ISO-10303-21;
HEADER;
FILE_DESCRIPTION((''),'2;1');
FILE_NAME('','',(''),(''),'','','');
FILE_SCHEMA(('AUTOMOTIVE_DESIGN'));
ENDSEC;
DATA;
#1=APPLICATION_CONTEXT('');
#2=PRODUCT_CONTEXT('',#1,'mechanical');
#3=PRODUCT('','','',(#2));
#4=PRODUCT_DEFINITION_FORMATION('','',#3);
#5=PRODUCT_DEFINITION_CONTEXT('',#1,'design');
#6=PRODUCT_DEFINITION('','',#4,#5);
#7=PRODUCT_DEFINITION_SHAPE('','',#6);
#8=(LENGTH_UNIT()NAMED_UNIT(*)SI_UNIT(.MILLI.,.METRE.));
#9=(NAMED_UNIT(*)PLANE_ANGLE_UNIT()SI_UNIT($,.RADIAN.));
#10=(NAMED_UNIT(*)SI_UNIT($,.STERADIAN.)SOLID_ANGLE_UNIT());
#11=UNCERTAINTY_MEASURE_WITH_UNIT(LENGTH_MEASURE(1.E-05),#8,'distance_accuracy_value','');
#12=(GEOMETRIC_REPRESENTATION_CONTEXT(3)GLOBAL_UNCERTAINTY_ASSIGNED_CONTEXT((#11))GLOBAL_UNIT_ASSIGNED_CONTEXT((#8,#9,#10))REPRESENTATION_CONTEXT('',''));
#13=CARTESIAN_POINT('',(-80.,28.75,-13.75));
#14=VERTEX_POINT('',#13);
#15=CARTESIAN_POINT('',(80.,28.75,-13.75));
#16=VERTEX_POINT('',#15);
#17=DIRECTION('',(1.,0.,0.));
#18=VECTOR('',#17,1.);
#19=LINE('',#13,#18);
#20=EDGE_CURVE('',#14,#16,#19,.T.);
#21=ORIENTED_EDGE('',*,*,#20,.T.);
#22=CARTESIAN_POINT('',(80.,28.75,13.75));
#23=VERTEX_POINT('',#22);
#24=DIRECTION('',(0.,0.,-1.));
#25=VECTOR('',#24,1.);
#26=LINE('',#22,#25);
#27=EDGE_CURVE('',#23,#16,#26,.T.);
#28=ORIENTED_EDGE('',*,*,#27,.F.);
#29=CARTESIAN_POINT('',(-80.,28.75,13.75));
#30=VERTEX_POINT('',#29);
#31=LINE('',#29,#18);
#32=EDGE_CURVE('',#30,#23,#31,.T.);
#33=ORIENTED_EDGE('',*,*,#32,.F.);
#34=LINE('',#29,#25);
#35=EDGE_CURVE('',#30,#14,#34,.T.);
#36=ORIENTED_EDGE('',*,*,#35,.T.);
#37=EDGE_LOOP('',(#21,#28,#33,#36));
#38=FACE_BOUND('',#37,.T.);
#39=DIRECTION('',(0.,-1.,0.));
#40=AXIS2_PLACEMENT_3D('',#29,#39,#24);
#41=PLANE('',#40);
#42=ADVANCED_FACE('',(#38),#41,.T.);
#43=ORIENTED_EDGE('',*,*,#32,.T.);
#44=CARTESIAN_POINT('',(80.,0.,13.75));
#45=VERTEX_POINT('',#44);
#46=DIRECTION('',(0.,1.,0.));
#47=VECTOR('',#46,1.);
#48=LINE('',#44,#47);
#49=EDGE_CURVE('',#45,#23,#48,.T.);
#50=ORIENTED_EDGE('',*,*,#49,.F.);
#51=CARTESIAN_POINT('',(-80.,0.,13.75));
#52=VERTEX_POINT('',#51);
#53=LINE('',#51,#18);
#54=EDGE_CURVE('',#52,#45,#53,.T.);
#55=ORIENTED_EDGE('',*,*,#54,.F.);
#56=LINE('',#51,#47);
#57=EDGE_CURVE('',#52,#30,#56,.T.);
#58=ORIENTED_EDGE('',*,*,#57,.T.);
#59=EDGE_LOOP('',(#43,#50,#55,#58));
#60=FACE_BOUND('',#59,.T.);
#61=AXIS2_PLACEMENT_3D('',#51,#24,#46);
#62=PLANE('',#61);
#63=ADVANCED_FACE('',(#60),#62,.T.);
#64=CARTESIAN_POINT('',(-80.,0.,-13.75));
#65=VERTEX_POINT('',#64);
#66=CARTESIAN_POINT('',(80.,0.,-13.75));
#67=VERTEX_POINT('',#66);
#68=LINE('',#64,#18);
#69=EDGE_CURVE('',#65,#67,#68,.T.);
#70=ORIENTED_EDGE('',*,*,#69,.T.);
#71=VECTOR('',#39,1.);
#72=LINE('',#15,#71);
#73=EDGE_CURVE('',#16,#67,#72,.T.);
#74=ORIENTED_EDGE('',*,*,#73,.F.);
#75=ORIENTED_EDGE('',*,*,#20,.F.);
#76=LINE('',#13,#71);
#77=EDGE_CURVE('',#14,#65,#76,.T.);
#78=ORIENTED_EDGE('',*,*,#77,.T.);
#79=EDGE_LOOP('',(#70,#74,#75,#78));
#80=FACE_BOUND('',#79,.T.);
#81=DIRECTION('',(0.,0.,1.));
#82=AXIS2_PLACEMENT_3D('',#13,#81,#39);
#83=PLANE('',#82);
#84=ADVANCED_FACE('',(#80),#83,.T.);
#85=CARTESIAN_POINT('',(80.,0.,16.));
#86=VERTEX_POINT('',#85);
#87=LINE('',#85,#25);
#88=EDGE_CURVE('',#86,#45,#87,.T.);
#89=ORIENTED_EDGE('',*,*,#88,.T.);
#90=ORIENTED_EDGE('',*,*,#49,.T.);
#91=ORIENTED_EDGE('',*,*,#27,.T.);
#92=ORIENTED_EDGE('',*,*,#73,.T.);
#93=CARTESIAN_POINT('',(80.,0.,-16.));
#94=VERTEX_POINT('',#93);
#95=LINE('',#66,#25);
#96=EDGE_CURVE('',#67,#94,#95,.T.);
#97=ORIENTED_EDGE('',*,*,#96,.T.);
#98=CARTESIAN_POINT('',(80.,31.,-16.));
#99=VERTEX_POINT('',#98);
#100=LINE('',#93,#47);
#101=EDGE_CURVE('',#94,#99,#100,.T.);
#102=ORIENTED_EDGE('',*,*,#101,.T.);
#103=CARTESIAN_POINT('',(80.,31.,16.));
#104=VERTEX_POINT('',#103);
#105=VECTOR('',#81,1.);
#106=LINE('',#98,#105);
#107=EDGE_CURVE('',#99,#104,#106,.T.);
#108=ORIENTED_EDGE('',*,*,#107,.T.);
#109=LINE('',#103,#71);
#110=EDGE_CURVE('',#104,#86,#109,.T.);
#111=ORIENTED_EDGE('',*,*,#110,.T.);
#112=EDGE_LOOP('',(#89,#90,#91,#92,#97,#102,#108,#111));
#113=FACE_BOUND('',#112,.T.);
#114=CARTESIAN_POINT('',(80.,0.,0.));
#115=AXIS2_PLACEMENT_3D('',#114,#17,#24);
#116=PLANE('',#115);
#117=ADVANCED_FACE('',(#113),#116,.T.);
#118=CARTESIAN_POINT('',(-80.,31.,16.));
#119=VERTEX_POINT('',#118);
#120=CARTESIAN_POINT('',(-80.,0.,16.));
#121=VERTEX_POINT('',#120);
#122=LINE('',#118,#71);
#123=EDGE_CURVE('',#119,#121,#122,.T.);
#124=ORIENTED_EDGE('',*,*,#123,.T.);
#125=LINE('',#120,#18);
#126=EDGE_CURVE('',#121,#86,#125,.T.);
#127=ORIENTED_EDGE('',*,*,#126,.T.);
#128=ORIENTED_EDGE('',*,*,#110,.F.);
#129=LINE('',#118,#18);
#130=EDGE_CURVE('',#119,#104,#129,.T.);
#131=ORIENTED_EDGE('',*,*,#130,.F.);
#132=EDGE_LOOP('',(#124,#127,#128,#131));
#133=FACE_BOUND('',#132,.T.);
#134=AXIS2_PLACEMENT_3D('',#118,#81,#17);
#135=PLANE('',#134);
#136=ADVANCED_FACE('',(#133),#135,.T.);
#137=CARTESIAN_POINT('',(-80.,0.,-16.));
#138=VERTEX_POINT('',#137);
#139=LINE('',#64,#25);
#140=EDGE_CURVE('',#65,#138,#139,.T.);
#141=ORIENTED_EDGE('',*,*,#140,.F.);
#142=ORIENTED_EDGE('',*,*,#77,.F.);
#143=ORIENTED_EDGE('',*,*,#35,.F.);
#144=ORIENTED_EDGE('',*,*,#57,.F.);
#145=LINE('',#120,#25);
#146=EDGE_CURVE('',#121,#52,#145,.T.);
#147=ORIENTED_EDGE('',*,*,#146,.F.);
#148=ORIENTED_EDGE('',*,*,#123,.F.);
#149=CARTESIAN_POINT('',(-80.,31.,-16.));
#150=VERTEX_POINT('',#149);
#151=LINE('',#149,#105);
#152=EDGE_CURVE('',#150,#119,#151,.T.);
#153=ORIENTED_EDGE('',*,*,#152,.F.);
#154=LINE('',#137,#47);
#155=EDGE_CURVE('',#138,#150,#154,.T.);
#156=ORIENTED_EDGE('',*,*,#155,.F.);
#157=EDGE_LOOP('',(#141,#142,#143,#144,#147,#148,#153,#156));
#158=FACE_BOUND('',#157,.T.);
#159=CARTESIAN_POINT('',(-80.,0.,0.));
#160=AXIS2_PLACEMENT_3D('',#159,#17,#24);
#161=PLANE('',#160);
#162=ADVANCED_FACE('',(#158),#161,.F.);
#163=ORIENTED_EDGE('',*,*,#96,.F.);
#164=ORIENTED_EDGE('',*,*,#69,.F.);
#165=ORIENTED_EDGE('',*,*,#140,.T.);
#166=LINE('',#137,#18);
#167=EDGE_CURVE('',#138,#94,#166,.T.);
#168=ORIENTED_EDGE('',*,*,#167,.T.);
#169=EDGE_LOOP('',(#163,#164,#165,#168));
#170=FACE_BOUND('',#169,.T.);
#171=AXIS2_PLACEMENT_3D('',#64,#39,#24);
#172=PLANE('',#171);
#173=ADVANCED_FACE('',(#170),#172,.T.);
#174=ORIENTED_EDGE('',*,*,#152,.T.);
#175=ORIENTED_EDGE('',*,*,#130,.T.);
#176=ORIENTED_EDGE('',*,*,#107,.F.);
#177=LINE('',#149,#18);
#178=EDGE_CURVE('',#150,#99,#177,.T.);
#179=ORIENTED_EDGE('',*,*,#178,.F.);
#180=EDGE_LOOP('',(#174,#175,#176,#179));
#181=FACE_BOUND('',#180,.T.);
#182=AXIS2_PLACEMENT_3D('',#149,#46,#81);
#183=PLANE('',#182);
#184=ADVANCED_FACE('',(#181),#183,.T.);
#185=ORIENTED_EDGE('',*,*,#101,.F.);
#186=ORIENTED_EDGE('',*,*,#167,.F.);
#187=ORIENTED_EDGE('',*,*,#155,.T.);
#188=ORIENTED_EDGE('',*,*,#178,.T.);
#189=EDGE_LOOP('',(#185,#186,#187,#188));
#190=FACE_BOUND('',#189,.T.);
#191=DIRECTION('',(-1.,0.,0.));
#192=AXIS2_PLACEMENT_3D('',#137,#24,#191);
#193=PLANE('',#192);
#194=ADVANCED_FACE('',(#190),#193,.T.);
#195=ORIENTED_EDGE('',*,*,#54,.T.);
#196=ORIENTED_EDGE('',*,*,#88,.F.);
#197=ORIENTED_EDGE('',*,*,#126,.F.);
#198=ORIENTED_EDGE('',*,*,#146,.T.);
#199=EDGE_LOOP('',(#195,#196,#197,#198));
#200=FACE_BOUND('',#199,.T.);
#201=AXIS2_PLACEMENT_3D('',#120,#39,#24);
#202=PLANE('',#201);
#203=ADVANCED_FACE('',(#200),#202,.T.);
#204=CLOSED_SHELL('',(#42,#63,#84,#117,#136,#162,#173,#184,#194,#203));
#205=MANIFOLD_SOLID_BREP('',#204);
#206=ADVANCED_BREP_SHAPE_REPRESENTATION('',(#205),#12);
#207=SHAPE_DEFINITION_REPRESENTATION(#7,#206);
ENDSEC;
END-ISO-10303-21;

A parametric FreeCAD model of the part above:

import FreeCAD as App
import Part
import Sketcher

V = App.Vector

doc = App.newDocument("Part")
body = doc.addObject("PartDesign::Body", "Body")

# Sketch on YZ plane
sketch1 = doc.addObject("Sketcher::SketchObject", "Sketch")
body.addObject(sketch1)
sketch1.AttachmentSupport = (doc.YZ_Plane, [""])
sketch1.MapMode = "FlatFace"
sketch1.AttachmentOffset = App.Placement(V(0, 0, 80), App.Rotation())
sketch1.addGeometry(Part.LineSegment(V(0, 13.8, 0), V(28.8, 13.8, 0)), False)
sketch1.addGeometry(Part.LineSegment(V(28.8, 13.8, 0), V(28.8, -13.8, 0)), False)
sketch1.addGeometry(Part.LineSegment(V(28.8, -13.8, 0), V(0, -13.8, 0)), False)
sketch1.addGeometry(Part.LineSegment(V(0, -13.8, 0), V(0, -16, 0)), False)
sketch1.addGeometry(Part.LineSegment(V(0, -16, 0), V(31, -16, 0)), False)
sketch1.addGeometry(Part.LineSegment(V(31, -16, 0), V(31, 16, 0)), False)
sketch1.addGeometry(Part.LineSegment(V(31, 16, 0), V(0, 16, 0)), False)
sketch1.addGeometry(Part.LineSegment(V(0, 16, 0), V(0, 13.8, 0)), False)
sketch1.addConstraint(Sketcher.Constraint("Coincident", 0, 2, 1, 1))
sketch1.addConstraint(Sketcher.Constraint("Coincident", 1, 2, 2, 1))
sketch1.addConstraint(Sketcher.Constraint("Coincident", 2, 2, 3, 1))
sketch1.addConstraint(Sketcher.Constraint("Coincident", 3, 2, 4, 1))
sketch1.addConstraint(Sketcher.Constraint("Coincident", 4, 2, 5, 1))
sketch1.addConstraint(Sketcher.Constraint("Coincident", 5, 2, 6, 1))
sketch1.addConstraint(Sketcher.Constraint("Coincident", 6, 2, 7, 1))
sketch1.addConstraint(Sketcher.Constraint("Coincident", 7, 2, 0, 1))
sketch1.addConstraint(Sketcher.Constraint("Horizontal", 0))
sketch1.addConstraint(Sketcher.Constraint("Vertical", 1))
sketch1.addConstraint(Sketcher.Constraint("Horizontal", 2))
sketch1.addConstraint(Sketcher.Constraint("Vertical", 3))
sketch1.addConstraint(Sketcher.Constraint("Horizontal", 4))
sketch1.addConstraint(Sketcher.Constraint("Vertical", 5))
sketch1.addConstraint(Sketcher.Constraint("Horizontal", 6))
sketch1.addConstraint(Sketcher.Constraint("Vertical", 7))
sketch1.addConstraint(Sketcher.Constraint("Symmetric", 3, 2, 6, 2, -1, 1))
sketch1.addConstraint(Sketcher.Constraint("Symmetric", 2, 2, 7, 2, -1))
sketch1.addConstraint(Sketcher.Constraint("DistanceX", 4, 1, 4, 2, 31.0))
sketch1.addConstraint(Sketcher.Constraint("DistanceY", 5, 1, 5, 2, 32.0))
sketch1.addConstraint(Sketcher.Constraint("DistanceY", 1, 2, 1, 1, 27.5))
sketch1.addConstraint(Sketcher.Constraint("DistanceX", 0, 1, 0, 2, 28.75))
pad1 = doc.addObject("PartDesign::Pad", "Pad")
body.addObject(pad1)
pad1.Profile = sketch1
pad1.Length = 160
pad1.Reversed = True

doc.recompute()
